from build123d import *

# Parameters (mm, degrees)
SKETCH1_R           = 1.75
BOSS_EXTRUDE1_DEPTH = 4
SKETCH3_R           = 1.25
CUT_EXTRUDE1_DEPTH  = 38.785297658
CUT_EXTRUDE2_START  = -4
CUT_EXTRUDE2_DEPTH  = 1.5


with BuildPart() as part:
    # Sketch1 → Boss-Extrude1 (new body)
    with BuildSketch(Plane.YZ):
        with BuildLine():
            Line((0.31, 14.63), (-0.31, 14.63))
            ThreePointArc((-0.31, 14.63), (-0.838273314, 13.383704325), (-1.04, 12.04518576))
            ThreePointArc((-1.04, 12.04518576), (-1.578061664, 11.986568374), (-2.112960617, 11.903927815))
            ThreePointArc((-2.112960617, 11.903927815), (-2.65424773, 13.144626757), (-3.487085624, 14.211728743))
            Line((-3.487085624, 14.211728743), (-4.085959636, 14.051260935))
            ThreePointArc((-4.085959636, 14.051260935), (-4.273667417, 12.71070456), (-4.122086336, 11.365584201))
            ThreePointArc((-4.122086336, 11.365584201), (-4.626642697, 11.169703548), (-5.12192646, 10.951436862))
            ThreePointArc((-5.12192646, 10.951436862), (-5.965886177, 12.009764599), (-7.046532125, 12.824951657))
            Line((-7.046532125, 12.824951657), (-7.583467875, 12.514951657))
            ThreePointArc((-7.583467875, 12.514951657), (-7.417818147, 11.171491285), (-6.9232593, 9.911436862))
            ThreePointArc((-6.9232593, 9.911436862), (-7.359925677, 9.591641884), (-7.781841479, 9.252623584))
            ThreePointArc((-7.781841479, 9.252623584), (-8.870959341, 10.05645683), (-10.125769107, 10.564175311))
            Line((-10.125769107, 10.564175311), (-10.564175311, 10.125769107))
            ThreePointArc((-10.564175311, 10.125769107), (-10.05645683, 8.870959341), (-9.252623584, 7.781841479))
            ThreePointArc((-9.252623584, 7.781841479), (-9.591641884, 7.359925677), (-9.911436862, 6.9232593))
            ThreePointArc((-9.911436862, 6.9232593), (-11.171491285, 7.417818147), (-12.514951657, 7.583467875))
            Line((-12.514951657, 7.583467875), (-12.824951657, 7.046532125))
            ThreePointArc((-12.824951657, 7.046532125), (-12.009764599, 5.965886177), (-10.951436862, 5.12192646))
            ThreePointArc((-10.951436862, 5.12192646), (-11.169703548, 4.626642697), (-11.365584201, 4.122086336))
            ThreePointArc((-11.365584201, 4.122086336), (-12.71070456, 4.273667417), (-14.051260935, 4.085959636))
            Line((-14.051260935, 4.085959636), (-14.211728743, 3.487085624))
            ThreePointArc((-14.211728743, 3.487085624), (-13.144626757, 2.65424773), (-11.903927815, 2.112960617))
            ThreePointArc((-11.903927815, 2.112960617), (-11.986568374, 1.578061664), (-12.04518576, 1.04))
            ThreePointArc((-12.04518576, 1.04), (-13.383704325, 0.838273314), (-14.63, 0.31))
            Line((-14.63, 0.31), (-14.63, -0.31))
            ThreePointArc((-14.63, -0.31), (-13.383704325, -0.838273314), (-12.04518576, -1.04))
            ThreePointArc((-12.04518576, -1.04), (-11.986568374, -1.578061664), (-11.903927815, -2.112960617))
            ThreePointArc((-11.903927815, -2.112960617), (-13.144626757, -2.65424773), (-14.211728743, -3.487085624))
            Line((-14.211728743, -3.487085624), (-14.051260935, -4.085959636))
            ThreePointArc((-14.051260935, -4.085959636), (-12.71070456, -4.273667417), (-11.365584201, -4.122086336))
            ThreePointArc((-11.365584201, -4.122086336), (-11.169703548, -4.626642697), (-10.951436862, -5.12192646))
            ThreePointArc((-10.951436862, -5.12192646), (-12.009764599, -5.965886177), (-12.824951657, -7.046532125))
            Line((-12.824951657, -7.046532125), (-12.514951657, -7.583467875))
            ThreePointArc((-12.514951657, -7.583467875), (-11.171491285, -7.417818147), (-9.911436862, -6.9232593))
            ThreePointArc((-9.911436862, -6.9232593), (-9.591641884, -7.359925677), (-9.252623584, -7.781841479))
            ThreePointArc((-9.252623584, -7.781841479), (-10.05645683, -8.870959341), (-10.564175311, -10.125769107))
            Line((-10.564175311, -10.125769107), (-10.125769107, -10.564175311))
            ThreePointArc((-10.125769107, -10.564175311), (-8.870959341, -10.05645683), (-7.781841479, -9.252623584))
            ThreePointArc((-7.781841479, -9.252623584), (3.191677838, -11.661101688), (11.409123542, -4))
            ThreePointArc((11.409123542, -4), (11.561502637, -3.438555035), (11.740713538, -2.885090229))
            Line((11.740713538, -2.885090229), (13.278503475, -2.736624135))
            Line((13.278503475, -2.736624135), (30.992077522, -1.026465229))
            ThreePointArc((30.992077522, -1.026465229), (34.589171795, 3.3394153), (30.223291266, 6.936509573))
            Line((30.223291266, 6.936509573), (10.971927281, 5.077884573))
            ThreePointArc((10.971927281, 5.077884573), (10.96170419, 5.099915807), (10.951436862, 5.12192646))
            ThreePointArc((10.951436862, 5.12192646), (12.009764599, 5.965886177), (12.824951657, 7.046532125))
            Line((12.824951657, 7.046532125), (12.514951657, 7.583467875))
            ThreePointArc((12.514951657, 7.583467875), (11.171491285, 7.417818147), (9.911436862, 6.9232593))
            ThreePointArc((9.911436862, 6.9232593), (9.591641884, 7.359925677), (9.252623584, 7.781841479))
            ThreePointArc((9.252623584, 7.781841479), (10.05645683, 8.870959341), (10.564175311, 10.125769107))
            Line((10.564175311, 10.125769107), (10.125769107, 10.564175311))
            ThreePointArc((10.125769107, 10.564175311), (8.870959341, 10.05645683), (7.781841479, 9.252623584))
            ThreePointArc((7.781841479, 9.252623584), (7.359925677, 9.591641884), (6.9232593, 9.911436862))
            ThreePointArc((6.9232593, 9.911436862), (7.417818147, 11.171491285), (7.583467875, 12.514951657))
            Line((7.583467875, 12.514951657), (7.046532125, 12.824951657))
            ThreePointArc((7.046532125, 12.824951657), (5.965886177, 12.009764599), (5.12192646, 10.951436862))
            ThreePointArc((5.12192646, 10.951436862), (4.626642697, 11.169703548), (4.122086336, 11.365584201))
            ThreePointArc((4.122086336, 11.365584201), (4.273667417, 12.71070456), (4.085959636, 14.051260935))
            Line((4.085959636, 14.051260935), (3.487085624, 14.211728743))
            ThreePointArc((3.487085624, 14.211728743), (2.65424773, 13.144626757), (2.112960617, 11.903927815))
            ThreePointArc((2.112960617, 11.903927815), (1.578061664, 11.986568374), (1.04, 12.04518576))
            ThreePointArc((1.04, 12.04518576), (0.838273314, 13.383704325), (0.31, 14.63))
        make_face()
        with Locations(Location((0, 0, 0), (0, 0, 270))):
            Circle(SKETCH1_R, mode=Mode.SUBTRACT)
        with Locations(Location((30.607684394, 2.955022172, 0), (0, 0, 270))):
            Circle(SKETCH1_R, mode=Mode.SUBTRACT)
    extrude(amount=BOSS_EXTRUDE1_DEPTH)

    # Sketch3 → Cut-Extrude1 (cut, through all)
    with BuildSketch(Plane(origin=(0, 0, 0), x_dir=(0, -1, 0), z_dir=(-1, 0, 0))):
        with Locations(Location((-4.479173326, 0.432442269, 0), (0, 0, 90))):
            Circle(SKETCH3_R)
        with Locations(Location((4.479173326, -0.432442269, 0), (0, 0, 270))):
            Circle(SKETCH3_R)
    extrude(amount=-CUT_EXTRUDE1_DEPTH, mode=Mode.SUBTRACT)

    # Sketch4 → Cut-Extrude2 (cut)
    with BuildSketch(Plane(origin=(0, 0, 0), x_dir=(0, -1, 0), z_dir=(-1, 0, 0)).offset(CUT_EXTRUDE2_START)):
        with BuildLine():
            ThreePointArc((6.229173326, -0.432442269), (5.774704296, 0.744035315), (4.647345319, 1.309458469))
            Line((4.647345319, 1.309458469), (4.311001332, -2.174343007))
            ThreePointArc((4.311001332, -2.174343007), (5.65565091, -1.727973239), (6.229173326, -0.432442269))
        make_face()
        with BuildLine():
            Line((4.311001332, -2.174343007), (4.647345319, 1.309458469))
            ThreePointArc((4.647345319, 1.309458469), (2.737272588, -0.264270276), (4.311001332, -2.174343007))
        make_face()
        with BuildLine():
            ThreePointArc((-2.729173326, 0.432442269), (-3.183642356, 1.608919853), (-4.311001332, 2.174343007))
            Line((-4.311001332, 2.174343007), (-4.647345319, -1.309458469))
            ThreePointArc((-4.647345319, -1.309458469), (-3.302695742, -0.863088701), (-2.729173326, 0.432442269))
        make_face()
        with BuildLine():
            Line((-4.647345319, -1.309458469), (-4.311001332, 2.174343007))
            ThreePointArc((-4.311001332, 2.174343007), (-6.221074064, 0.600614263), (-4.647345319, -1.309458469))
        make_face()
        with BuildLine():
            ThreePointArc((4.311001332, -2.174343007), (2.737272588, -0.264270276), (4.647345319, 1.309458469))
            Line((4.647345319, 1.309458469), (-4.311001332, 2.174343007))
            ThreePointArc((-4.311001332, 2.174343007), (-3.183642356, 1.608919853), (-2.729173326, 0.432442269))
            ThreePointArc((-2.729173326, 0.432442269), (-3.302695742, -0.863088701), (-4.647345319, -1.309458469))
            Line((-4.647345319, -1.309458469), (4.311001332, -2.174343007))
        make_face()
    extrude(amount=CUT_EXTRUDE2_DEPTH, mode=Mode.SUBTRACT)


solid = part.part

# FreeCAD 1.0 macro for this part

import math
import FreeCAD as App
import Part
import Sketcher

V = App.Vector
Q = App.Units.Quantity

doc = App.newDocument("Part")
body = doc.addObject("PartDesign::Body", "Body")

# Sketch on YZ plane
sketch1 = body.newObject("Sketcher::SketchObject", "Sketch")
sketch1.AttachmentSupport = (doc.getObject("YZ_Plane"), [""])
sketch1.MapMode = "FlatFace"
sketch1.addGeometry([
    Part.LineSegment(V(0.31, 14.63, 0), V(-0.31, 14.63, 0)),  # 0
    Part.ArcOfCircle(Part.Circle(V(4.358456, 11.916051, 0), V(0, 0, 1), 5.4), math.radians(149.828948), math.radians(178.629703)),  # 1
    Part.ArcOfCircle(Part.Circle(V(0, 0, 0), V(0, 0, 1), 12.09), math.radians(94.934768), math.radians(100.065232)),  # 2
    Part.ArcOfCircle(Part.Circle(V(-7.294046, 10.38197, 0), V(0, 0, 1), 5.4), math.radians(16.370297), math.radians(45.171052)),  # 3
    Part.LineSegment(V(-3.487086, 14.211729, 0), V(-4.08596, 14.051261, 0)),  # 4
    Part.ArcOfCircle(Part.Circle(V(1.125844, 12.638072, 0), V(0, 0, 1), 5.4), math.radians(164.828948), math.radians(193.629703)),  # 5
    Part.ArcOfCircle(Part.Circle(V(0, 0, 0), V(0, 0, 1), 12.09), math.radians(109.934768), math.radians(115.065232)),  # 6
    Part.ArcOfCircle(Part.Circle(V(-9.732559, 8.140375, 0), V(0, 0, 1), 5.4), math.radians(31.370297), math.radians(60.171052)),  # 7
    Part.LineSegment(V(-7.046532, 12.824952, 0), V(-7.583468, 12.514952, 0)),  # 8
    Part.ArcOfCircle(Part.Circle(V(-2.183492, 12.49883, 0), V(0, 0, 1), 5.4), math.radians(179.828948), math.radians(208.629703)),  # 9
    Part.ArcOfCircle(Part.Circle(V(0, 0, 0), V(0, 0, 1), 12.09), math.radians(124.934768), math.radians(130.065232)),  # 10
    Part.ArcOfCircle(Part.Circle(V(-11.507814, 5.344027, 0), V(0, 0, 1), 5.4), math.radians(46.370297), math.radians(75.171052)),  # 11
    Part.LineSegment(V(-10.125769, 10.564175, 0), V(-10.564175, 10.125769, 0)),  # 12
    Part.ArcOfCircle(Part.Circle(V(-5.344027, 11.507814, 0), V(0, 0, 1), 5.4), math.radians(-165.171052), math.radians(-136.370297)),  # 13
    Part.ArcOfCircle(Part.Circle(V(0, 0, 0), V(0, 0, 1), 12.09), math.radians(139.934768), math.radians(145.065232)),  # 14
    Part.ArcOfCircle(Part.Circle(V(-12.49883, 2.183492, 0), V(0, 0, 1), 5.4), math.radians(61.370297), math.radians(90.171052)),  # 15
    Part.LineSegment(V(-12.514952, 7.583468, 0), V(-12.824952, 7.046532, 0)),  # 16
    Part.ArcOfCircle(Part.Circle(V(-8.140375, 9.732559, 0), V(0, 0, 1), 5.4), math.radians(-150.171052), math.radians(-121.370297)),  # 17
    Part.ArcOfCircle(Part.Circle(V(0, 0, 0), V(0, 0, 1), 12.09), math.radians(154.934768), math.radians(160.065232)),  # 18
    Part.ArcOfCircle(Part.Circle(V(-12.638072, -1.125844, 0), V(0, 0, 1), 5.4), math.radians(76.370297), math.radians(105.171052)),  # 19
    Part.LineSegment(V(-14.051261, 4.08596, 0), V(-14.211729, 3.487086, 0)),  # 20
    Part.ArcOfCircle(Part.Circle(V(-10.38197, 7.294046, 0), V(0, 0, 1), 5.4), math.radians(-135.171052), math.radians(-106.370297)),  # 21
    Part.ArcOfCircle(Part.Circle(V(0, 0, 0), V(0, 0, 1), 12.09), math.radians(169.934768), math.radians(175.065232)),  # 22
    Part.ArcOfCircle(Part.Circle(V(-11.916051, -4.358456, 0), V(0, 0, 1), 5.4), math.radians(91.370297), math.radians(120.171052)),  # 23
    Part.LineSegment(V(-14.63, 0.31, 0), V(-14.63, -0.31, 0)),  # 24
    Part.ArcOfCircle(Part.Circle(V(-11.916051, 4.358456, 0), V(0, 0, 1), 5.4), math.radians(-120.171052), math.radians(-91.370297)),  # 25
    Part.ArcOfCircle(Part.Circle(V(0, 0, 0), V(0, 0, 1), 12.09), math.radians(-175.065232), math.radians(-169.934768)),  # 26
    Part.ArcOfCircle(Part.Circle(V(-10.38197, -7.294046, 0), V(0, 0, 1), 5.4), math.radians(106.370297), math.radians(135.171052)),  # 27
    Part.LineSegment(V(-14.211729, -3.487086, 0), V(-14.051261, -4.08596, 0)),  # 28
    Part.ArcOfCircle(Part.Circle(V(-12.638072, 1.125844, 0), V(0, 0, 1), 5.4), math.radians(-105.171052), math.radians(-76.370297)),  # 29
    Part.ArcOfCircle(Part.Circle(V(0, 0, 0), V(0, 0, 1), 12.09), math.radians(-160.065232), math.radians(-154.934768)),  # 30
    Part.ArcOfCircle(Part.Circle(V(-8.140375, -9.732559, 0), V(0, 0, 1), 5.4), math.radians(121.370297), math.radians(150.171052)),  # 31
    Part.LineSegment(V(-12.824952, -7.046532, 0), V(-12.514952, -7.583468, 0)),  # 32
    Part.ArcOfCircle(Part.Circle(V(-12.49883, -2.183492, 0), V(0, 0, 1), 5.4), math.radians(-90.171052), math.radians(-61.370297)),  # 33
    Part.ArcOfCircle(Part.Circle(V(0, 0, 0), V(0, 0, 1), 12.09), math.radians(-145.065232), math.radians(-139.934768)),  # 34
    Part.ArcOfCircle(Part.Circle(V(-5.344027, -11.507814, 0), V(0, 0, 1), 5.4), math.radians(136.370297), math.radians(165.171052)),  # 35
    Part.LineSegment(V(-10.564175, -10.125769, 0), V(-10.125769, -10.564175, 0)),  # 36
    Part.ArcOfCircle(Part.Circle(V(-11.507814, -5.344027, 0), V(0, 0, 1), 5.4), math.radians(-75.171052), math.radians(-46.370297)),  # 37
    Part.ArcOfCircle(Part.Circle(V(0, 0, 0), V(0, 0, 1), 12.09), math.radians(-130.065232), math.radians(-19.320493)),  # 38
    Part.ArcOfCircle(Part.Circle(V(23.149837, -6.88509, 0), V(0, 0, 1), 12.09), math.radians(160.679507), math.radians(166.194043)),  # 39
    Part.LineSegment(V(11.740714, -2.88509, 0), V(13.278503, -2.736624, 0)),  # 40
    Part.LineSegment(V(13.278503, -2.736624, 0), V(30.992078, -1.026465, 0)),  # 41
    Part.ArcOfCircle(Part.Circle(V(30.607684, 2.955022, 0), V(0, 0, 1), 4), math.radians(-84.485464), math.radians(95.514536)),  # 42
    Part.LineSegment(V(30.223291, 6.93651, 0), V(10.971927, 5.077885, 0)),  # 43
    Part.ArcOfCircle(Part.Circle(V(-0.000234, -0.000109, 0), V(0, 0, 1), 12.090258), math.radians(24.835031), math.radians(25.065229)),  # 44
    Part.ArcOfCircle(Part.Circle(V(8.140375, 9.732559, 0), V(0, 0, 1), 5.4), math.radians(-58.629703), math.radians(-29.828948)),  # 45
    Part.LineSegment(V(12.824952, 7.046532, 0), V(12.514952, 7.583468, 0)),  # 46
    Part.ArcOfCircle(Part.Circle(V(12.49883, 2.183492, 0), V(0, 0, 1), 5.4), math.radians(89.828948), math.radians(118.629703)),  # 47
    Part.ArcOfCircle(Part.Circle(V(0, 0, 0), V(0, 0, 1), 12.09), math.radians(34.934768), math.radians(40.065232)),  # 48
    Part.ArcOfCircle(Part.Circle(V(5.344027, 11.507814, 0), V(0, 0, 1), 5.4), math.radians(-43.629703), math.radians(-14.828948)),  # 49
    Part.LineSegment(V(10.564175, 10.125769, 0), V(10.125769, 10.564175, 0)),  # 50
    Part.ArcOfCircle(Part.Circle(V(11.507814, 5.344027, 0), V(0, 0, 1), 5.4), math.radians(104.828948), math.radians(133.629703)),  # 51
    Part.ArcOfCircle(Part.Circle(V(0, 0, 0), V(0, 0, 1), 12.09), math.radians(49.934768), math.radians(55.065232)),  # 52
    Part.ArcOfCircle(Part.Circle(V(2.183492, 12.49883, 0), V(0, 0, 1), 5.4), math.radians(-28.629703), math.radians(0.171052)),  # 53
    Part.LineSegment(V(7.583468, 12.514952, 0), V(7.046532, 12.824952, 0)),  # 54
    Part.ArcOfCircle(Part.Circle(V(9.732559, 8.140375, 0), V(0, 0, 1), 5.4), math.radians(119.828948), math.radians(148.629703)),  # 55
    Part.ArcOfCircle(Part.Circle(V(0, 0, 0), V(0, 0, 1), 12.09), math.radians(64.934768), math.radians(70.065232)),  # 56
    Part.ArcOfCircle(Part.Circle(V(-1.125844, 12.638072, 0), V(0, 0, 1), 5.4), math.radians(-13.629703), math.radians(15.171052)),  # 57
    Part.LineSegment(V(4.08596, 14.051261, 0), V(3.487086, 14.211729, 0)),  # 58
    Part.ArcOfCircle(Part.Circle(V(7.294046, 10.38197, 0), V(0, 0, 1), 5.4), math.radians(134.828948), math.radians(163.629703)),  # 59
    Part.ArcOfCircle(Part.Circle(V(0, 0, 0), V(0, 0, 1), 12.09), math.radians(79.934768), math.radians(85.065232)),  # 60
    Part.ArcOfCircle(Part.Circle(V(-4.358456, 11.916051, 0), V(0, 0, 1), 5.4), math.radians(1.370297), math.radians(30.171052)),  # 61
    Part.Circle(V(0, 0, 0), V(0, 0, 1), 1.75),  # 62
    Part.Circle(V(30.607684, 2.955022, 0), V(0, 0, 1), 1.75),  # 63
], False)
sketch1.addConstraint([
    Sketcher.Constraint("Coincident", 0, 2, 1, 1),
    Sketcher.Constraint("Coincident", 1, 2, 2, 1),
    Sketcher.Constraint("Coincident", 2, 2, 3, 1),
    Sketcher.Constraint("Coincident", 3, 2, 4, 1),
    Sketcher.Constraint("Coincident", 4, 2, 5, 1),
    Sketcher.Constraint("Coincident", 5, 2, 6, 1),
    Sketcher.Constraint("Coincident", 6, 2, 7, 1),
    Sketcher.Constraint("Coincident", 7, 2, 8, 1),
    Sketcher.Constraint("Coincident", 8, 2, 9, 1),
    Sketcher.Constraint("Coincident", 9, 2, 10, 1),
    Sketcher.Constraint("Coincident", 10, 2, 11, 1),
    Sketcher.Constraint("Coincident", 11, 2, 12, 1),
    Sketcher.Constraint("Coincident", 12, 2, 13, 1),
    Sketcher.Constraint("Coincident", 13, 2, 14, 1),
    Sketcher.Constraint("Coincident", 14, 2, 15, 1),
    Sketcher.Constraint("Coincident", 15, 2, 16, 1),
    Sketcher.Constraint("Coincident", 16, 2, 17, 1),
    Sketcher.Constraint("Coincident", 17, 2, 18, 1),
    Sketcher.Constraint("Coincident", 18, 2, 19, 1),
    Sketcher.Constraint("Coincident", 19, 2, 20, 1),
    Sketcher.Constraint("Coincident", 20, 2, 21, 1),
    Sketcher.Constraint("Coincident", 21, 2, 22, 1),
    Sketcher.Constraint("Coincident", 22, 2, 23, 1),
    Sketcher.Constraint("Coincident", 23, 2, 24, 1),
    Sketcher.Constraint("Coincident", 24, 2, 25, 1),
    Sketcher.Constraint("Coincident", 25, 2, 26, 1),
    Sketcher.Constraint("Coincident", 26, 2, 27, 1),
    Sketcher.Constraint("Coincident", 27, 2, 28, 1),
    Sketcher.Constraint("Coincident", 28, 2, 29, 1),
    Sketcher.Constraint("Coincident", 29, 2, 30, 1),
    Sketcher.Constraint("Coincident", 30, 2, 31, 1),
    Sketcher.Constraint("Coincident", 31, 2, 32, 1),
    Sketcher.Constraint("Coincident", 32, 2, 33, 1),
    Sketcher.Constraint("Coincident", 33, 2, 34, 1),
    Sketcher.Constraint("Coincident", 34, 2, 35, 1),
    Sketcher.Constraint("Coincident", 35, 2, 36, 1),
    Sketcher.Constraint("Coincident", 36, 2, 37, 1),
    Sketcher.Constraint("Coincident", 37, 2, 38, 1),
    Sketcher.Constraint("Coincident", 38, 2, 39, 2),
    Sketcher.Constraint("Coincident", 39, 1, 40, 1),
    Sketcher.Constraint("Coincident", 40, 2, 41, 1),
    Sketcher.Constraint("Tangent", 41, 2, 42, 1),
    Sketcher.Constraint("Tangent", 42, 2, 43, 1),
    Sketcher.Constraint("Coincident", 43, 2, 44, 1),
    Sketcher.Constraint("Coincident", 44, 2, 45, 1),
    Sketcher.Constraint("Coincident", 45, 2, 46, 1),
    Sketcher.Constraint("Coincident", 46, 2, 47, 1),
    Sketcher.Constraint("Coincident", 47, 2, 48, 1),
    Sketcher.Constraint("Coincident", 48, 2, 49, 1),
    Sketcher.Constraint("Coincident", 49, 2, 50, 1),
    Sketcher.Constraint("Coincident", 50, 2, 51, 1),
    Sketcher.Constraint("Coincident", 51, 2, 52, 1),
    Sketcher.Constraint("Coincident", 52, 2, 53, 1),
    Sketcher.Constraint("Coincident", 53, 2, 54, 1),
    Sketcher.Constraint("Coincident", 54, 2, 55, 1),
    Sketcher.Constraint("Coincident", 55, 2, 56, 1),
    Sketcher.Constraint("Coincident", 56, 2, 57, 1),
    Sketcher.Constraint("Coincident", 57, 2, 58, 1),
    Sketcher.Constraint("Coincident", 58, 2, 59, 1),
    Sketcher.Constraint("Coincident", 59, 2, 60, 1),
    Sketcher.Constraint("Coincident", 60, 2, 61, 1),
    Sketcher.Constraint("Coincident", 61, 2, 0, 1),
    Sketcher.Constraint("Horizontal", 0),
    Sketcher.Constraint("Vertical", 24),
    Sketcher.Constraint("Coincident", 2, 3, -1, 1),
    Sketcher.Constraint("Coincident", 6, 3, -1, 1),
    Sketcher.Constraint("Coincident", 10, 3, -1, 1),
    Sketcher.Constraint("Coincident", 14, 3, -1, 1),
    Sketcher.Constraint("Coincident", 18, 3, -1, 1),
    Sketcher.Constraint("Coincident", 22, 3, -1, 1),
    Sketcher.Constraint("Coincident", 26, 3, -1, 1),
    Sketcher.Constraint("Coincident", 30, 3, -1, 1),
    Sketcher.Constraint("Coincident", 34, 3, -1, 1),
    Sketcher.Constraint("Coincident", 38, 3, -1, 1),
    Sketcher.Constraint("Coincident", 48, 3, -1, 1),
    Sketcher.Constraint("Coincident", 52, 3, -1, 1),
    Sketcher.Constraint("Coincident", 56, 3, -1, 1),
    Sketcher.Constraint("Coincident", 60, 3, -1, 1),
    Sketcher.Constraint("Coincident", 62, 3, -1, 1),
    Sketcher.Constraint("Coincident", 63, 3, 42, 3),
    Sketcher.Constraint("Equal", 1, 3),
    Sketcher.Constraint("Equal", 3, 5),
    Sketcher.Constraint("Equal", 2, 6),
    Sketcher.Constraint("Equal", 5, 7),
    Sketcher.Constraint("Equal", 7, 9),
    Sketcher.Constraint("Equal", 6, 10),
    Sketcher.Constraint("Equal", 9, 11),
    Sketcher.Constraint("Equal", 11, 13),
    Sketcher.Constraint("Equal", 10, 14),
    Sketcher.Constraint("Equal", 13, 15),
    Sketcher.Constraint("Equal", 15, 17),
    Sketcher.Constraint("Equal", 14, 18),
    Sketcher.Constraint("Equal", 17, 19),
    Sketcher.Constraint("Equal", 19, 21),
    Sketcher.Constraint("Equal", 18, 22),
    Sketcher.Constraint("Equal", 21, 23),
    Sketcher.Constraint("Equal", 23, 25),
    Sketcher.Constraint("Equal", 22, 26),
    Sketcher.Constraint("Equal", 25, 27),
    Sketcher.Constraint("Equal", 27, 29),
    Sketcher.Constraint("Equal", 26, 30),
    Sketcher.Constraint("Equal", 29, 31),
    Sketcher.Constraint("Equal", 31, 33),
    Sketcher.Constraint("Equal", 30, 34),
    Sketcher.Constraint("Equal", 33, 35),
    Sketcher.Constraint("Equal", 35, 37),
    Sketcher.Constraint("Equal", 34, 38),
    Sketcher.Constraint("Equal", 38, 39),
    Sketcher.Constraint("Equal", 37, 45),
    Sketcher.Constraint("Equal", 45, 47),
    Sketcher.Constraint("Equal", 39, 48),
    Sketcher.Constraint("Equal", 47, 49),
    Sketcher.Constraint("Equal", 49, 51),
    Sketcher.Constraint("Equal", 48, 52),
    Sketcher.Constraint("Equal", 51, 53),
    Sketcher.Constraint("Equal", 53, 55),
    Sketcher.Constraint("Equal", 52, 56),
    Sketcher.Constraint("Equal", 55, 57),
    Sketcher.Constraint("Equal", 57, 59),
    Sketcher.Constraint("Equal", 56, 60),
    Sketcher.Constraint("Equal", 59, 61),
    Sketcher.Constraint("Equal", 62, 63),
    Sketcher.Constraint("Symmetric", 31, 3, 45, 3, -1, 1),
    Sketcher.Constraint("Symmetric", 33, 3, 47, 3, -1, 1),
    Sketcher.Constraint("Symmetric", 35, 3, 49, 3, -1, 1),
    Sketcher.Constraint("Symmetric", 37, 3, 51, 3, -1, 1),
    Sketcher.Constraint("Symmetric", 17, 3, 45, 3, -2),
    Sketcher.Constraint("Symmetric", 15, 3, 47, 3, -2),
    Sketcher.Constraint("Symmetric", 13, 3, 49, 3, -2),
    Sketcher.Constraint("Symmetric", 11, 3, 51, 3, -2),
    Sketcher.Constraint("Symmetric", 9, 3, 53, 3, -2),
    Sketcher.Constraint("Symmetric", 7, 3, 55, 3, -2),
    Sketcher.Constraint("Symmetric", 5, 3, 57, 3, -2),
    Sketcher.Constraint("Symmetric", 3, 3, 59, 3, -2),
    Sketcher.Constraint("Symmetric", 1, 3, 61, 3, -2),
    Sketcher.Constraint("Symmetric", 23, 3, 25, 3, -1),
    Sketcher.Constraint("Symmetric", 21, 3, 27, 3, -1),
    Sketcher.Constraint("Symmetric", 19, 3, 29, 3, -1),
    Sketcher.Constraint("Perpendicular", 4, 28),
    Sketcher.Constraint("Perpendicular", 8, 32),
    Sketcher.Constraint("Perpendicular", 12, 36),
    Sketcher.Constraint("Parallel", 40, 41),
    Sketcher.Constraint("Parallel", 41, 43),
    Sketcher.Constraint("Parallel", 32, 46),
    Sketcher.Constraint("Parallel", 36, 50),
    Sketcher.Constraint("Perpendicular", 16, 54),
    Sketcher.Constraint("Perpendicular", 20, 58),
    Sketcher.Constraint("Horizontal", 17, 2, 44, 2),
    Sketcher.Constraint("Horizontal", 16, 2, 45, 2),
    Sketcher.Constraint("Horizontal", 12, 2, 49, 2),
    Sketcher.Constraint("Horizontal", 11, 2, 50, 2),
    Sketcher.Constraint("Horizontal", 8, 2, 53, 2),
    Sketcher.Constraint("Horizontal", 7, 2, 54, 2),
    Sketcher.Constraint("Horizontal", 4, 2, 57, 2),
    Sketcher.Constraint("Horizontal", 3, 2, 58, 2),
    Sketcher.Constraint("Vertical", 20, 2, 27, 2),
    Sketcher.Constraint("Vertical", 16, 2, 31, 2),
    Sketcher.Constraint("Vertical", 12, 2, 35, 2),
    Sketcher.Constraint("Equal", 0, 24),
    Sketcher.Constraint("Equal", 4, 8),
    Sketcher.Constraint("Equal", 8, 12),
    Sketcher.Constraint("Equal", 12, 16),
    Sketcher.Constraint("Equal", 16, 20),
    Sketcher.Constraint("Radius", 42, 4.0),
    Sketcher.Constraint("Diameter", 62, 3.5),
    Sketcher.Constraint("Radius", 1, 5.4),
    Sketcher.Constraint("Angle", 4, Q("-165 deg")),
    Sketcher.Constraint("Angle", 8, Q("-150 deg")),
    Sketcher.Constraint("Radius", 2, 12.09),
    Sketcher.Constraint("DistanceY", 38, 2, -1, 1, 4.0),
    Sketcher.Constraint("DistanceX", 0, 2, 0, 1, 0.62),
    Sketcher.Constraint("Distance", 4, 0.62),
    Sketcher.Constraint("DistanceY", -1, 1, 0, 2, 14.63),
    Sketcher.Constraint("DistanceX", 1, 2, -1, 1, 1.04),
    Sketcher.Constraint("DistanceY", -1, 1, 22, 2, 1.04),
    Sketcher.Constraint("DistanceX", 23, 2, -1, 1, 14.63),
    Sketcher.Constraint("Radius", 44, 12.090258),
    Sketcher.Constraint("Distance", 40, 1.54494),
    Sketcher.Constraint("DistanceY", -1, 1, 3, 3, 10.38197),
    Sketcher.Constraint("DistanceX", 7, 3, -1, 1, 9.732559),
    Sketcher.Constraint("DistanceX", 9, 3, -1, 1, 2.183492),
    Sketcher.Constraint("DistanceY", -1, 1, 9, 3, 12.49883),
    Sketcher.Constraint("DistanceX", 15, 3, -1, 1, 12.49883),
    Sketcher.Constraint("DistanceY", -1, 1, 15, 3, 2.183492),
    Sketcher.Constraint("DistanceY", -1, 1, 17, 3, 9.732559),
    Sketcher.Constraint("DistanceX", 21, 3, -1, 1, 10.38197),
    Sketcher.Constraint("DistanceY", 39, 3, -1, 1, 6.88509),
    Sketcher.Constraint("DistanceY", 44, 3, -1, 1, 0.000109),
    Sketcher.Constraint("DistanceX", 2, 2, -1, 1, 2.112961),
    Sketcher.Constraint("DistanceY", -1, 1, 3, 2, 14.211729),
    Sketcher.Constraint("DistanceY", -1, 1, 7, 2, 12.824952),
    Sketcher.Constraint("DistanceX", 10, 2, -1, 1, 7.781841),
    Sketcher.Constraint("DistanceX", 11, 2, -1, 1, 10.125769),
    Sketcher.Constraint("DistanceY", -1, 1, 12, 2, 10.125769),
    Sketcher.Constraint("DistanceY", -1, 1, 13, 2, 7.781841),
    Sketcher.Constraint("DistanceX", 15, 2, -1, 1, 12.514952),
    Sketcher.Constraint("DistanceX", 19, 2, -1, 1, 14.051261),
    Sketcher.Constraint("DistanceY", -1, 1, 19, 2, 4.08596),
    Sketcher.Constraint("DistanceY", 39, 1, -1, 1, 2.88509),
    Sketcher.Constraint("DistanceX", -1, 1, 42, 2, 30.223291),
    Sketcher.Constraint("DistanceY", -1, 1, 42, 2, 6.93651),
    Sketcher.Constraint("DistanceX", -1, 1, 5, 3, 1.125844),
    Sketcher.Constraint("DistanceX", 19, 3, -1, 1, 12.638072),
])
pad1 = body.newObject("PartDesign::Pad", "Pad")
pad1.Profile = sketch1
pad1.Length = 4

# Sketch on YZ plane
sketch2 = body.newObject("Sketcher::SketchObject", "Sketch001")
sketch2.AttachmentSupport = (doc.getObject("YZ_Plane"), [""])
sketch2.MapMode = "FlatFace"
sketch2.addGeometry([
    Part.Circle(V(4.479173, 0.432442, 0), V(0, 0, 1), 1.25),
    Part.Circle(V(-4.479173, -0.432442, 0), V(0, 0, 1), 1.25),
], False)
sketch2.addConstraint([
    Sketcher.Constraint("Equal", 0, 1),
    Sketcher.Constraint("Symmetric", 0, 3, 1, 3, -1, 1),
    Sketcher.Constraint("Diameter", 0, 2.5),
    Sketcher.Constraint("DistanceX", -1, 1, 0, 3, 4.479173),
    Sketcher.Constraint("DistanceY", -1, 1, 0, 3, 0.432442),
])
pocket1 = body.newObject("PartDesign::Pocket", "Pocket")
pocket1.Profile = sketch2
pocket1.Type = "ThroughAll"
pocket1.Reversed = True

# Sketch on YZ plane
sketch3 = body.newObject("Sketcher::SketchObject", "Sketch002")
sketch3.AttachmentSupport = (doc.getObject("YZ_Plane"), [""])
sketch3.MapMode = "FlatFace"
sketch3.AttachmentOffset = App.Placement(V(0, 0, 4), App.Rotation())
sketch3.addGeometry([
    Part.ArcOfCircle(Part.Circle(V(-4.479173, -0.432442, 0), V(0, 0, 1), 1.75), math.radians(95.514536), math.radians(180)),  # 0
    Part.LineSegment(V(-4.647345, 1.309458, 0), V(4.311001, 2.174343, 0)),  # 1
    Part.ArcOfCircle(Part.Circle(V(4.479173, 0.432442, 0), V(0, 0, 1), 1.75), math.radians(-84.485464), math.radians(95.514536)),  # 2
    Part.LineSegment(V(4.647345, -1.309458, 0), V(-4.311001, -2.174343, 0)),  # 3
    Part.ArcOfCircle(Part.Circle(V(-4.479173, -0.432442, 0), V(0, 0, 1), 1.75), math.radians(180), math.radians(275.514536)),  # 4
], False)
sketch3.addConstraint([
    Sketcher.Constraint("Tangent", 0, 1, 1, 1),
    Sketcher.Constraint("Tangent", 1, 2, 2, 2),
    Sketcher.Constraint("Tangent", 2, 1, 3, 1),
    Sketcher.Constraint("Tangent", 3, 2, 4, 2),
    Sketcher.Constraint("Tangent", 4, 1, 0, 2),
    Sketcher.Constraint("Equal", 0, 2),
    Sketcher.Constraint("Equal", 2, 4),
    Sketcher.Constraint("Symmetric", 0, 3, 2, 3, -1, 1),
    Sketcher.Constraint("Horizontal", 0, 3, 4, 1),
    Sketcher.Constraint("Radius", 0, 1.75),
    Sketcher.Constraint("Distance", 1, 9.0),
    Sketcher.Constraint("DistanceX", -1, 1, 1, 2, 4.311001),
])
pocket2 = body.newObject("PartDesign::Pocket", "Pocket001")
pocket2.Profile = sketch3
pocket2.Length = 1.5

doc.recompute()
